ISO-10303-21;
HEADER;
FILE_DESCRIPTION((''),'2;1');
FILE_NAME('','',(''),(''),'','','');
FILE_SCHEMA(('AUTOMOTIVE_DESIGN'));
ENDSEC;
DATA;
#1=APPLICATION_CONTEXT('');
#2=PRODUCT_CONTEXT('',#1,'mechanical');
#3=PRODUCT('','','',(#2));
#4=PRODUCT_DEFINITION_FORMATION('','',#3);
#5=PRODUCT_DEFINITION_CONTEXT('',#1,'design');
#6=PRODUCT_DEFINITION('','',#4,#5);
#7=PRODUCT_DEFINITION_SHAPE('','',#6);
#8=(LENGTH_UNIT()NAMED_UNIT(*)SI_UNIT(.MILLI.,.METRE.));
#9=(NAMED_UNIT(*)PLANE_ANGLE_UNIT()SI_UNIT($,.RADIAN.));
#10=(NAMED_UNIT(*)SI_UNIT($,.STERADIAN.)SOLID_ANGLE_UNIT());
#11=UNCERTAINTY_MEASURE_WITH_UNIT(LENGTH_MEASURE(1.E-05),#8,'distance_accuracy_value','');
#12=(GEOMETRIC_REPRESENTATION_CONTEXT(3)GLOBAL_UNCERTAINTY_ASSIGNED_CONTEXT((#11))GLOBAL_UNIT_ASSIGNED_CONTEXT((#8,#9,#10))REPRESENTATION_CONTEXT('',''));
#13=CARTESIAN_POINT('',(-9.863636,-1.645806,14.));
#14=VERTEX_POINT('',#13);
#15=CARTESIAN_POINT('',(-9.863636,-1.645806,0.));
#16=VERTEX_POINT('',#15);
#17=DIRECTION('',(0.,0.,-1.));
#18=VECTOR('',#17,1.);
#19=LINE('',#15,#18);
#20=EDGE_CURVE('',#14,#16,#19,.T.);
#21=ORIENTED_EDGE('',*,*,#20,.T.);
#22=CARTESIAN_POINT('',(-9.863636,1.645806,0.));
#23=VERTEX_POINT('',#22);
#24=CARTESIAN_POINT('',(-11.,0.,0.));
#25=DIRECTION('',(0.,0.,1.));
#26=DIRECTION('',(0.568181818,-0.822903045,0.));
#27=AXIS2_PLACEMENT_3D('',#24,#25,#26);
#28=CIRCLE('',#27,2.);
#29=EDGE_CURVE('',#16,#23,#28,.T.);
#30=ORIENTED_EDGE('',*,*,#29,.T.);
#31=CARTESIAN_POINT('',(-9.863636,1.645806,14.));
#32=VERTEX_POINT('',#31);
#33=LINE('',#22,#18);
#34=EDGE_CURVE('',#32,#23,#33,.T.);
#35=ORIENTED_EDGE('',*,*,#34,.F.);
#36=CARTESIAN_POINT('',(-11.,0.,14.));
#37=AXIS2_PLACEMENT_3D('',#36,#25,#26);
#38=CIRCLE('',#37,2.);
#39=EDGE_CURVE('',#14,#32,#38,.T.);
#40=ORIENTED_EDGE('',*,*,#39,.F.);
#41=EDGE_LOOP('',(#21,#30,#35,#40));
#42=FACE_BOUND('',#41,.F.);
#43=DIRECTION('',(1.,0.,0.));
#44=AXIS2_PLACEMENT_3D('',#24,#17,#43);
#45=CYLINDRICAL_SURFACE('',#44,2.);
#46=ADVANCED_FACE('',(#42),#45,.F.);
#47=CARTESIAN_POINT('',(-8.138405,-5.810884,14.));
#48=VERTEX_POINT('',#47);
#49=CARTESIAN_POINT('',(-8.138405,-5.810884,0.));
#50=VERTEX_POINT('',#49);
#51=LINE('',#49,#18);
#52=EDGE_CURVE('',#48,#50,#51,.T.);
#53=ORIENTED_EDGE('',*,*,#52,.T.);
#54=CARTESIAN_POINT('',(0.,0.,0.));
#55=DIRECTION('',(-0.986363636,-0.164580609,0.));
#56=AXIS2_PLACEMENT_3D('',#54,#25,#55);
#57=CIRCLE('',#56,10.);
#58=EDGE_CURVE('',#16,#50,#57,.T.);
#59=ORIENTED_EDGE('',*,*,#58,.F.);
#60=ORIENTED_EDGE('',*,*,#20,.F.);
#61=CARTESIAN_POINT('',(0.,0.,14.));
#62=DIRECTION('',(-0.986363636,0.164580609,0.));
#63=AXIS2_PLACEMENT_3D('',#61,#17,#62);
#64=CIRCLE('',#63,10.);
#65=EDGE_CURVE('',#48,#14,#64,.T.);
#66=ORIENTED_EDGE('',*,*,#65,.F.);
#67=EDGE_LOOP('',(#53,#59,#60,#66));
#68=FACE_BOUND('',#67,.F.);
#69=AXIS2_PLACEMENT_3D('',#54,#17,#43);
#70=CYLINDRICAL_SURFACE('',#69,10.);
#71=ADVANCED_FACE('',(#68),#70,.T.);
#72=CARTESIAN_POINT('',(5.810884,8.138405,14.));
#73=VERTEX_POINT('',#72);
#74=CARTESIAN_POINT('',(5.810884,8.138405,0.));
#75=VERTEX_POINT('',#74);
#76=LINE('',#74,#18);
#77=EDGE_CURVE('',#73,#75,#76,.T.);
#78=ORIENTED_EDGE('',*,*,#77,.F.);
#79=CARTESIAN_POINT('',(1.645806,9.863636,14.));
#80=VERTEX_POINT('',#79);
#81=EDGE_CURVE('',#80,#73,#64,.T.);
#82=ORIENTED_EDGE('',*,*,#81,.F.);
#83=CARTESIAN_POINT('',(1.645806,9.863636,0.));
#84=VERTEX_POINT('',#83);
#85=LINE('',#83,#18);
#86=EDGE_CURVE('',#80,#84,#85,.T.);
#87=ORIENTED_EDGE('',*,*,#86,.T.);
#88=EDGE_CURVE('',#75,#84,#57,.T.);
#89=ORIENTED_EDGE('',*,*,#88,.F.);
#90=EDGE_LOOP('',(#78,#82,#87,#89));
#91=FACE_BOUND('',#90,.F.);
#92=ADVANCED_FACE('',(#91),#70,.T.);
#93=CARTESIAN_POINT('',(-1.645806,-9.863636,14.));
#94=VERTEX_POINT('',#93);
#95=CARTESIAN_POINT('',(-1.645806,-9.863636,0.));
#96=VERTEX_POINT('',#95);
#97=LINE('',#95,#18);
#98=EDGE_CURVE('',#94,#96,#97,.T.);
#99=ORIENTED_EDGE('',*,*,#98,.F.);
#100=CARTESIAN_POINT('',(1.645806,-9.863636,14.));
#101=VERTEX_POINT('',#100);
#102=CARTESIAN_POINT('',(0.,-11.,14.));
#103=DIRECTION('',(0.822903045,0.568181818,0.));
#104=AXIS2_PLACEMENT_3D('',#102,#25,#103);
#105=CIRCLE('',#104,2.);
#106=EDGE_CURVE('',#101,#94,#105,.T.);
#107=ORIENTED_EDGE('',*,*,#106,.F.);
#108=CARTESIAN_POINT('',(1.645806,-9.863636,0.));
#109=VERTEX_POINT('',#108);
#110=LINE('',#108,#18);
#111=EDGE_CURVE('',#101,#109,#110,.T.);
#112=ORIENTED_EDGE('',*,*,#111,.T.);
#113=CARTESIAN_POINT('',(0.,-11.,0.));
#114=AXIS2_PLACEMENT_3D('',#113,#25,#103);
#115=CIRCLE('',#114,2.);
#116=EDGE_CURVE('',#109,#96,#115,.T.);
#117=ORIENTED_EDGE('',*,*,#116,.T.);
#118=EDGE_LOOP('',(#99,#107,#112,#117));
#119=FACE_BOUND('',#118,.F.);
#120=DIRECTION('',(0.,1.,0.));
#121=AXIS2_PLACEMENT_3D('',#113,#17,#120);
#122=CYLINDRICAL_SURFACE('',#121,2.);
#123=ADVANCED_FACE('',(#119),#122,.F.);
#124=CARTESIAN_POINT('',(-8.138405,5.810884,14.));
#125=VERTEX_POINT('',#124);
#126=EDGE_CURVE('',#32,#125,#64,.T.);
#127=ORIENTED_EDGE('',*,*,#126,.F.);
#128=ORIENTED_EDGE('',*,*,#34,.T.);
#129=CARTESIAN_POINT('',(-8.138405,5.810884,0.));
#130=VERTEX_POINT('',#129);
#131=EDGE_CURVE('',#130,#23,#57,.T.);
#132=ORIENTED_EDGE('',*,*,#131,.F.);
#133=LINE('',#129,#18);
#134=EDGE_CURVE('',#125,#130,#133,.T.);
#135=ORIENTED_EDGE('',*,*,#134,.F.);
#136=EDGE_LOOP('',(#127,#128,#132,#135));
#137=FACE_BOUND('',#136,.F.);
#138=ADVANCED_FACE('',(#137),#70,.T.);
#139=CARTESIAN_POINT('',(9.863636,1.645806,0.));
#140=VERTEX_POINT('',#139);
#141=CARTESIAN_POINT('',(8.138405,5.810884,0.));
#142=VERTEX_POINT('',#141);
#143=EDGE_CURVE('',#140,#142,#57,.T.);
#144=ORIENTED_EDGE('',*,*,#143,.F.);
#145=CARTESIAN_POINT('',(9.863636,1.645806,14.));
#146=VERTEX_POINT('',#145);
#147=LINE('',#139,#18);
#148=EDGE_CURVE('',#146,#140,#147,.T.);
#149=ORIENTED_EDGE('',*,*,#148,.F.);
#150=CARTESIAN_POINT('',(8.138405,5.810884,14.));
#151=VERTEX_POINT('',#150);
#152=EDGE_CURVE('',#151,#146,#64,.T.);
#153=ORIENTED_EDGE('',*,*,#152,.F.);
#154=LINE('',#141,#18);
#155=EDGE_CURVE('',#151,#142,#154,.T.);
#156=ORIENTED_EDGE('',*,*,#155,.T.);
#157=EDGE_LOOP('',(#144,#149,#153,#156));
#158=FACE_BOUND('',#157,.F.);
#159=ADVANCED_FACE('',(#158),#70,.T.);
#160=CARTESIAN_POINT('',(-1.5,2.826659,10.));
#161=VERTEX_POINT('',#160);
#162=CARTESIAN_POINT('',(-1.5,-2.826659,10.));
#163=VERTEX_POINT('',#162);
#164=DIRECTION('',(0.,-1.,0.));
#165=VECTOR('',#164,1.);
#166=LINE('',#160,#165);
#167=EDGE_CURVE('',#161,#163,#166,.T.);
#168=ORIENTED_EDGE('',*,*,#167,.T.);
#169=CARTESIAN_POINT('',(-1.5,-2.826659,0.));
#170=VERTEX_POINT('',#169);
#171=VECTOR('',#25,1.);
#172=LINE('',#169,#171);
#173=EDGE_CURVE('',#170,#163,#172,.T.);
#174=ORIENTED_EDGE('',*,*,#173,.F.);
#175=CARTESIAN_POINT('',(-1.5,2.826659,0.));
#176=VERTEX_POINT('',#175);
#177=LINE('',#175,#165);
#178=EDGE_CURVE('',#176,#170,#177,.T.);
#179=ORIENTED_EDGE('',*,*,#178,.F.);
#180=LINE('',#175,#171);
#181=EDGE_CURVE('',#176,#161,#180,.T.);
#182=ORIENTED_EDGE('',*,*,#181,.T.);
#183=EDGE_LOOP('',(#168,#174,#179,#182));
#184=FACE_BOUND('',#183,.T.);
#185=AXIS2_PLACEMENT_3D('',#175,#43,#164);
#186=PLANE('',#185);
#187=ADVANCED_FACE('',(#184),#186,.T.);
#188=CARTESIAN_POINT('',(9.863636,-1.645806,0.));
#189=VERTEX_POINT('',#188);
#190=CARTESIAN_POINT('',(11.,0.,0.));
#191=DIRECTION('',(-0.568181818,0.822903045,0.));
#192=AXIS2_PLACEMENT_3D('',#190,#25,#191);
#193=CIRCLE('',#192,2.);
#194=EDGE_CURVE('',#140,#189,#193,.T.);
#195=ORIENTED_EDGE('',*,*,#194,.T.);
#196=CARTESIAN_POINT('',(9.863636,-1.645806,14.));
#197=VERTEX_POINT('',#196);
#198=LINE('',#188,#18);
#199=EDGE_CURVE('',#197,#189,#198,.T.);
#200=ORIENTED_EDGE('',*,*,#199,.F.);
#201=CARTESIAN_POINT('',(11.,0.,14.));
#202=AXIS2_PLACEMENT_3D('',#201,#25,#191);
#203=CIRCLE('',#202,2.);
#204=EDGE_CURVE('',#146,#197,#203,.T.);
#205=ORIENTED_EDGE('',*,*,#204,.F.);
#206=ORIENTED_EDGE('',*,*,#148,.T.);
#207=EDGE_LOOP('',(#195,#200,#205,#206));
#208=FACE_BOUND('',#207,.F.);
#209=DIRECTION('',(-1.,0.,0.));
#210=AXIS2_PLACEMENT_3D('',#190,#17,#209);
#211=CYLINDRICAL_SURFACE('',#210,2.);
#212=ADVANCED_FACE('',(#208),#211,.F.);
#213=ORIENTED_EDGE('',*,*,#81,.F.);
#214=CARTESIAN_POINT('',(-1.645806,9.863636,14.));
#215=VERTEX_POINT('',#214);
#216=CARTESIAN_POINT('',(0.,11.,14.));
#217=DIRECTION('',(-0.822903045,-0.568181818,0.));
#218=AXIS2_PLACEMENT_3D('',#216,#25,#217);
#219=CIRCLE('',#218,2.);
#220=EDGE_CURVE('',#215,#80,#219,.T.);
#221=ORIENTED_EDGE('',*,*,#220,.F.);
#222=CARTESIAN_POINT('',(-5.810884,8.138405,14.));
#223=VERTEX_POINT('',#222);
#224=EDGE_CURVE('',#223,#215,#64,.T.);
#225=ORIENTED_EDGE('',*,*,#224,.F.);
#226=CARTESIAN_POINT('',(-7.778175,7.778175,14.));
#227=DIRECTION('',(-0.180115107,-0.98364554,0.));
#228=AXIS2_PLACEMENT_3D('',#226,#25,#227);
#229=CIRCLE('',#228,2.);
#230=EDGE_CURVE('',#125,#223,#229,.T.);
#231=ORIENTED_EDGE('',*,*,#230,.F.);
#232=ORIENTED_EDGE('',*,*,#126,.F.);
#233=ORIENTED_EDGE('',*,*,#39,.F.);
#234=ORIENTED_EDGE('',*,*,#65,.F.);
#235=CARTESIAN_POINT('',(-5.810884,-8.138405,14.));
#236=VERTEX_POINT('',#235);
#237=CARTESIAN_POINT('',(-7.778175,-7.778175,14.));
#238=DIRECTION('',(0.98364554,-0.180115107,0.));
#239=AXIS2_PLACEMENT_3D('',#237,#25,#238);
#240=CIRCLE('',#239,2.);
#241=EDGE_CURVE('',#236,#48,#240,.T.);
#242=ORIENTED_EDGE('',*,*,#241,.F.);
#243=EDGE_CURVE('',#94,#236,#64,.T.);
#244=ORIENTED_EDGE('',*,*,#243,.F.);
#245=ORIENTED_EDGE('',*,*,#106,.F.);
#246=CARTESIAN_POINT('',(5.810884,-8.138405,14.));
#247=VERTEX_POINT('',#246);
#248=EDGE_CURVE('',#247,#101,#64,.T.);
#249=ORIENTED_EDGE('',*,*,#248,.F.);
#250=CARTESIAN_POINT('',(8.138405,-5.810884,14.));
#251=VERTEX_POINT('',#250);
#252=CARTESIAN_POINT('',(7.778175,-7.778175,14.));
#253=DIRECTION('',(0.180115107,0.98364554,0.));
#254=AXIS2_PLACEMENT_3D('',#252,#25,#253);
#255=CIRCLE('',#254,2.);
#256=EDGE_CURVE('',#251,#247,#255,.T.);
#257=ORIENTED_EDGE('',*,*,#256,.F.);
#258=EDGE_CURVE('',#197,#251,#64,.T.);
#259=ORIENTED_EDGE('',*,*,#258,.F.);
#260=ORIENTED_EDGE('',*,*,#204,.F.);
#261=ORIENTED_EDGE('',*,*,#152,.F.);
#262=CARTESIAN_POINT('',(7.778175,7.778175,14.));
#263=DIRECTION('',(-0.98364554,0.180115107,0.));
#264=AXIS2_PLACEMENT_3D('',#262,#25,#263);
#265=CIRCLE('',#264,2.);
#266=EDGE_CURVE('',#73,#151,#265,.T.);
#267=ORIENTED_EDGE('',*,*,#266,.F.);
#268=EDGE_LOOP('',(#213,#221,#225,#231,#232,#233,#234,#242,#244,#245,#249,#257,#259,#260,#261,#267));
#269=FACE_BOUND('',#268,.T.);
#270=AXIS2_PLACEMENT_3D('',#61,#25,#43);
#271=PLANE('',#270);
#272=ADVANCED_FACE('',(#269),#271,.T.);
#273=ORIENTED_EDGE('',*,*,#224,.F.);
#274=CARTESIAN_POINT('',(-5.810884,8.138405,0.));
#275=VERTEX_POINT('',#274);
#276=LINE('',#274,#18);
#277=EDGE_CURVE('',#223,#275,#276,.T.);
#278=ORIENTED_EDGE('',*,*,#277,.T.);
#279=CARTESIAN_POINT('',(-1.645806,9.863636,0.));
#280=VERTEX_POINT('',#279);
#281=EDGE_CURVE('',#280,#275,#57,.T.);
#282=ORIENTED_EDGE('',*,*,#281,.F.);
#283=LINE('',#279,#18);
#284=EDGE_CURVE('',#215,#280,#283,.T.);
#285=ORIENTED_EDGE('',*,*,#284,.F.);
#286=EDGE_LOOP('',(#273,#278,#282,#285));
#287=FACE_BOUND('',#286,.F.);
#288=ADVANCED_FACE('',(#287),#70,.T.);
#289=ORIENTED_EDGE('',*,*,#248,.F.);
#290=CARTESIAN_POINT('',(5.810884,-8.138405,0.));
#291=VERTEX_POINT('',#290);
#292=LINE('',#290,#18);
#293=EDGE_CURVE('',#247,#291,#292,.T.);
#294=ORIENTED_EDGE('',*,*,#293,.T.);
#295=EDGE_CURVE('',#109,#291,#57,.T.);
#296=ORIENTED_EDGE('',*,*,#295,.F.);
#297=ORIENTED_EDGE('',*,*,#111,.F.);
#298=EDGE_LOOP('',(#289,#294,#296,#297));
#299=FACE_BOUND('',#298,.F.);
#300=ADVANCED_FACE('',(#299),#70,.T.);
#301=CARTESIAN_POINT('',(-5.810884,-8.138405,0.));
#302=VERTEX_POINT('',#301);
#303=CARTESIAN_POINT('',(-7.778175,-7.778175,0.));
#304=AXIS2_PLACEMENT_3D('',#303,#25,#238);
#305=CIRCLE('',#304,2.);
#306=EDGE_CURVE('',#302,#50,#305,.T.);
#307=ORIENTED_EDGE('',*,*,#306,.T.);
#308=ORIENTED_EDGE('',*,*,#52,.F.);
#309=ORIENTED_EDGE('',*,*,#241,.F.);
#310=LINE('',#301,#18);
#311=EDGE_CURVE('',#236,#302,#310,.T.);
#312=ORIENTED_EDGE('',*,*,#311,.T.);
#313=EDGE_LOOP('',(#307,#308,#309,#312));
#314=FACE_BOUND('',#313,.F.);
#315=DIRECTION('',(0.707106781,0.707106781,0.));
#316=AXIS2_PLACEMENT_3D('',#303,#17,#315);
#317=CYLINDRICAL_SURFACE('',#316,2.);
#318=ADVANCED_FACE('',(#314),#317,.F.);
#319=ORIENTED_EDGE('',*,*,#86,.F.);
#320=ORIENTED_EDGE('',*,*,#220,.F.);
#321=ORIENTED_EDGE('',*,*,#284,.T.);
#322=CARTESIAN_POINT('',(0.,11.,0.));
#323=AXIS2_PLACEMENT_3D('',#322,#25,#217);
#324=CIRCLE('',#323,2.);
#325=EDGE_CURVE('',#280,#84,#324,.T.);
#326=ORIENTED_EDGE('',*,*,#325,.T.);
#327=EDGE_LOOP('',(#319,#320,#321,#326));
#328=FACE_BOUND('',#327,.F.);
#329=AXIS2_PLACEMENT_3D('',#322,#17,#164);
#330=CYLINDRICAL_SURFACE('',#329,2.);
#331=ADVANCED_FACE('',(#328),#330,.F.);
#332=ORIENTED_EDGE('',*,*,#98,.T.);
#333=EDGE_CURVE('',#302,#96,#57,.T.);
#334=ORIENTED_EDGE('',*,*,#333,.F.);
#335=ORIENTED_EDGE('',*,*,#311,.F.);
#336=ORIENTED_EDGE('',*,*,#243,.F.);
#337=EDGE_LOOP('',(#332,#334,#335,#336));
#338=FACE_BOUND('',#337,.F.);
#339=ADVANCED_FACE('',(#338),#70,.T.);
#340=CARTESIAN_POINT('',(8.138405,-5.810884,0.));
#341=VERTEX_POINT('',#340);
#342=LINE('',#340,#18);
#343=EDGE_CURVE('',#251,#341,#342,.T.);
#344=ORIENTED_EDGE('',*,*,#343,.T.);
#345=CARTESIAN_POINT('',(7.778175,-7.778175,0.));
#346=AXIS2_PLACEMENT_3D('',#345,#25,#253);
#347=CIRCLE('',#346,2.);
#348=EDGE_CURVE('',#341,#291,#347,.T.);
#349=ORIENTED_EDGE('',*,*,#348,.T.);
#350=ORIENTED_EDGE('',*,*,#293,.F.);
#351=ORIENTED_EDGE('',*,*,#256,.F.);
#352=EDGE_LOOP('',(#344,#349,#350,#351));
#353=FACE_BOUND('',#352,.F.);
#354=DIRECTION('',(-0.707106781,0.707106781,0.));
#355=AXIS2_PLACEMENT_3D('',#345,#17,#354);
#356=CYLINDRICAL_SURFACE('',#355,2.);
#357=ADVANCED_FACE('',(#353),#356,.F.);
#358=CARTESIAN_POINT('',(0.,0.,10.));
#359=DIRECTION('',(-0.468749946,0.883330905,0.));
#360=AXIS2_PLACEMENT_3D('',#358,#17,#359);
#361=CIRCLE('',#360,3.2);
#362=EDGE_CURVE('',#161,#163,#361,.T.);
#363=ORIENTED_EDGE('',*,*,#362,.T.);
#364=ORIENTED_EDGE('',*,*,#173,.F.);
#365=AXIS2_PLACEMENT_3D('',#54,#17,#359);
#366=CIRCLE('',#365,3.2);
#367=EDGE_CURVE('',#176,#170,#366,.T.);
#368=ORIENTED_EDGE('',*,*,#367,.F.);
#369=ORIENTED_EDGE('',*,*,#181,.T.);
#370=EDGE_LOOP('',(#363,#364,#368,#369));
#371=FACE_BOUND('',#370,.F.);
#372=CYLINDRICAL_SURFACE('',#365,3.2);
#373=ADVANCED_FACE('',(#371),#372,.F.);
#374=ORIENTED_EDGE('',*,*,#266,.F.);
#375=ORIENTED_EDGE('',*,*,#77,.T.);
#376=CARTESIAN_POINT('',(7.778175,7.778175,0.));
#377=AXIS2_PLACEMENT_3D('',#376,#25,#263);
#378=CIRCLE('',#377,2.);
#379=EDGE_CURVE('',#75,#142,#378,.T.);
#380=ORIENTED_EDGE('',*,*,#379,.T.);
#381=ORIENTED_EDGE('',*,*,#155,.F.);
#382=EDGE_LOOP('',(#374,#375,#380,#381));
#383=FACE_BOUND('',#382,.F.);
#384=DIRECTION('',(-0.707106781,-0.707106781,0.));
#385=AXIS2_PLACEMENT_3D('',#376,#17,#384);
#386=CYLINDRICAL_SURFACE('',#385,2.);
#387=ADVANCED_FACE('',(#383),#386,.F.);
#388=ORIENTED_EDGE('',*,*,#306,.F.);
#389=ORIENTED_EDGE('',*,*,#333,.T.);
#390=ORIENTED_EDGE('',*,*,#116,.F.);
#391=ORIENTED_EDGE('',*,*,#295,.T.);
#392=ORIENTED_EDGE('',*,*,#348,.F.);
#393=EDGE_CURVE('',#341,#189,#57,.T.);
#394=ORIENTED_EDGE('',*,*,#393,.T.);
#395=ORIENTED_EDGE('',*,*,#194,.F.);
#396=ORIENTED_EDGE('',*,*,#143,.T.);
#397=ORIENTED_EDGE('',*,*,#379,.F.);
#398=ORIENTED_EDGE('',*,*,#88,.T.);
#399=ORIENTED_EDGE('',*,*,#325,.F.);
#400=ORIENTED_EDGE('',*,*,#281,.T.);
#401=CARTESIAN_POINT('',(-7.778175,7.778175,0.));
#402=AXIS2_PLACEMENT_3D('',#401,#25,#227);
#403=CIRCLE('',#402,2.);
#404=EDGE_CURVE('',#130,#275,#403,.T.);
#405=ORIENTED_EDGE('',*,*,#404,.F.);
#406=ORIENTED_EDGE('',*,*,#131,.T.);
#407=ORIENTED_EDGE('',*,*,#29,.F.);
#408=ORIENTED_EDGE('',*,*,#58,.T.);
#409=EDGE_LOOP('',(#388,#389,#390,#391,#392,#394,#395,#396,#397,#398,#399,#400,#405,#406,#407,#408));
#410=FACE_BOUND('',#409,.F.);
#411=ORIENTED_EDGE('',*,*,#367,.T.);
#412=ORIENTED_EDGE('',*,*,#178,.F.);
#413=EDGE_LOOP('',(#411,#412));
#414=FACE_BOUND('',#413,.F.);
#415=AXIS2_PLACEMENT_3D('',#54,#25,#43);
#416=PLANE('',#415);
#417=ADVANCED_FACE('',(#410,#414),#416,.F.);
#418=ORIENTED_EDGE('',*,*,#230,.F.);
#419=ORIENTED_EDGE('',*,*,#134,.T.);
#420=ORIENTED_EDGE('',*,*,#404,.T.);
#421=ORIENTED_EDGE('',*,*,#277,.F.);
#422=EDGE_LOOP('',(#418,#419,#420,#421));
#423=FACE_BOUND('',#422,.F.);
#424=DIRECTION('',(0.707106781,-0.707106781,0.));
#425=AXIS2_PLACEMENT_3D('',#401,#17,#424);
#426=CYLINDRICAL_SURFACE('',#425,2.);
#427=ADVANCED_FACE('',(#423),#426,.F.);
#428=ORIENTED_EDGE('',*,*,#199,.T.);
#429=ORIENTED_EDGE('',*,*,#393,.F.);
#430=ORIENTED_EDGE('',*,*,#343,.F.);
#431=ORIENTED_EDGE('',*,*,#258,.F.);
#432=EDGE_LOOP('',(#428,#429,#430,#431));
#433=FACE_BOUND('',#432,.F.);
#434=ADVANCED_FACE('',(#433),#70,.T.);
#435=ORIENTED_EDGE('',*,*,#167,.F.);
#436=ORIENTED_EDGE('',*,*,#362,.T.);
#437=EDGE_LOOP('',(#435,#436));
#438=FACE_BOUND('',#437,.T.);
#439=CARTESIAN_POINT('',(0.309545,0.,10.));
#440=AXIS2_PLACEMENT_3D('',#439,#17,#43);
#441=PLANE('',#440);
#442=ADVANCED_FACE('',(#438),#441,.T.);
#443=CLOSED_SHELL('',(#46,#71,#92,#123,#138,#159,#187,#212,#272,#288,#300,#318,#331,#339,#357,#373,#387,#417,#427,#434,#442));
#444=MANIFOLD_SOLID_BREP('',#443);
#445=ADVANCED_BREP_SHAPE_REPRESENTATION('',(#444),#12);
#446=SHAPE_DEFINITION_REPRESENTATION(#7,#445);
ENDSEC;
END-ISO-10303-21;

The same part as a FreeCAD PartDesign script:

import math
import FreeCAD as App
import Part
import Sketcher
from FreeCAD import Vector
Q = App.Units.Quantity

doc = App.newDocument("Part")
body = doc.addObject("PartDesign::Body", "Body")

# Sketch on XY plane
sketch1 = doc.addObject("Sketcher::SketchObject", "Sketch")
body.addObject(sketch1)
sketch1.AttachmentSupport = (doc.XY_Plane, [""])
sketch1.MapMode = "FlatFace"
sketch1.addGeometry(Part.Circle(Vector(0, 0, 0), Vector(0, 0, 1), 10), False)
sketch1.addConstraint(Sketcher.Constraint("Coincident", 0, 3, -1, 1))
sketch1.addConstraint(Sketcher.Constraint("Diameter", 0, Q("20 mm")))
pad1 = doc.addObject("PartDesign::Pad", "Pad")
body.addObject(pad1)
pad1.Profile = sketch1
pad1.Length = 14

# Sketch on XY plane
sketch2 = doc.addObject("Sketcher::SketchObject", "Sketch001")
body.addObject(sketch2)
sketch2.AttachmentSupport = (doc.XY_Plane, [""])
sketch2.MapMode = "FlatFace"
sketch2.addGeometry(Part.ArcOfCircle(Part.Circle(Vector(0, 0, 0), Vector(0, 0, 1), 3.2), math.radians(-118), math.radians(118)), False)
sketch2.addGeometry(Part.LineSegment(Vector(-1.5, -2.8, 0), Vector(-1.5, 2.8, 0)), False)
sketch2.addConstraint(Sketcher.Constraint("Coincident", 0, 1, 1, 1))
sketch2.addConstraint(Sketcher.Constraint("Coincident", 1, 2, 0, 2))
sketch2.addConstraint(Sketcher.Constraint("Vertical", 1))
sketch2.addConstraint(Sketcher.Constraint("Coincident", 0, 3, -1, 1))
sketch2.addConstraint(Sketcher.Constraint("Radius", 0, Q("3.2 mm")))
sketch2.addConstraint(Sketcher.Constraint("DistanceX", 0, 1, -1, 1, Q("1.5 mm")))
pocket1 = doc.addObject("PartDesign::Pocket", "Pocket")
body.addObject(pocket1)
pocket1.Profile = sketch2
pocket1.Length = 10
pocket1.Reversed = True

# Sketch on XY plane
sketch3 = doc.addObject("Sketcher::SketchObject", "Sketch002")
body.addObject(sketch3)
sketch3.AttachmentSupport = (doc.XY_Plane, [""])
sketch3.MapMode = "FlatFace"
sketch3.addGeometry(Part.Circle(Vector(-11, 0, 0), Vector(0, 0, 1), 2), False)
sketch3.addConstraint(Sketcher.Constraint("PointOnObject", 0, 3, -1))
sketch3.addConstraint(Sketcher.Constraint("Diameter", 0, Q("4 mm")))
sketch3.addConstraint(Sketcher.Constraint("DistanceX", 0, 3, -1, 1, Q("11 mm")))
pocket2 = doc.addObject("PartDesign::Pocket", "Pocket001")
body.addObject(pocket2)
pocket2.Profile = sketch3
pocket2.Length = 14
pocket2.Reversed = True
doc.recompute()

polarpattern = doc.addObject("PartDesign::PolarPattern", "PolarPattern")
body.addObject(polarpattern)
polarpattern.Originals = [pocket2]
polarpattern.Axis = (doc.Z_Axis, [""])
polarpattern.Angle = 360
polarpattern.Occurrences = 8
body.Tip = polarpattern

doc.recompute()
